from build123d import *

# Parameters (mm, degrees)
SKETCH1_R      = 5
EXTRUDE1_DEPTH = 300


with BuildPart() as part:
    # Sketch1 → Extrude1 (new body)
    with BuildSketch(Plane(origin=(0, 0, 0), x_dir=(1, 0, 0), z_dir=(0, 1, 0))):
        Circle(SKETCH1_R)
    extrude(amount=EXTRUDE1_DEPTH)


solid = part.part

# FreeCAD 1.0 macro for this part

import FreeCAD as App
import Part
import Sketcher
from FreeCAD import Vector
Q = App.Units.Quantity

doc = App.newDocument("Part")
body = doc.addObject("PartDesign::Body", "Body")

# Sketch on XZ plane
sketch1 = body.newObject("Sketcher::SketchObject", "Sketch")
sketch1.AttachmentSupport = (doc.getObject("XZ_Plane"), [""])
sketch1.MapMode = "FlatFace"
sketch1.addGeometry(Part.Circle(Vector(0, 0, 0), Vector(0, 0, 1), 5), False)
sketch1.addConstraint([
    Sketcher.Constraint("Coincident", 0, 3, -1, 1),
    Sketcher.Constraint("Diameter", 0, Q("10 mm")),
])
pad1 = body.newObject("PartDesign::Pad", "Pad")
pad1.Profile = sketch1
pad1.Length = 300
pad1.Reversed = True

doc.recompute()
